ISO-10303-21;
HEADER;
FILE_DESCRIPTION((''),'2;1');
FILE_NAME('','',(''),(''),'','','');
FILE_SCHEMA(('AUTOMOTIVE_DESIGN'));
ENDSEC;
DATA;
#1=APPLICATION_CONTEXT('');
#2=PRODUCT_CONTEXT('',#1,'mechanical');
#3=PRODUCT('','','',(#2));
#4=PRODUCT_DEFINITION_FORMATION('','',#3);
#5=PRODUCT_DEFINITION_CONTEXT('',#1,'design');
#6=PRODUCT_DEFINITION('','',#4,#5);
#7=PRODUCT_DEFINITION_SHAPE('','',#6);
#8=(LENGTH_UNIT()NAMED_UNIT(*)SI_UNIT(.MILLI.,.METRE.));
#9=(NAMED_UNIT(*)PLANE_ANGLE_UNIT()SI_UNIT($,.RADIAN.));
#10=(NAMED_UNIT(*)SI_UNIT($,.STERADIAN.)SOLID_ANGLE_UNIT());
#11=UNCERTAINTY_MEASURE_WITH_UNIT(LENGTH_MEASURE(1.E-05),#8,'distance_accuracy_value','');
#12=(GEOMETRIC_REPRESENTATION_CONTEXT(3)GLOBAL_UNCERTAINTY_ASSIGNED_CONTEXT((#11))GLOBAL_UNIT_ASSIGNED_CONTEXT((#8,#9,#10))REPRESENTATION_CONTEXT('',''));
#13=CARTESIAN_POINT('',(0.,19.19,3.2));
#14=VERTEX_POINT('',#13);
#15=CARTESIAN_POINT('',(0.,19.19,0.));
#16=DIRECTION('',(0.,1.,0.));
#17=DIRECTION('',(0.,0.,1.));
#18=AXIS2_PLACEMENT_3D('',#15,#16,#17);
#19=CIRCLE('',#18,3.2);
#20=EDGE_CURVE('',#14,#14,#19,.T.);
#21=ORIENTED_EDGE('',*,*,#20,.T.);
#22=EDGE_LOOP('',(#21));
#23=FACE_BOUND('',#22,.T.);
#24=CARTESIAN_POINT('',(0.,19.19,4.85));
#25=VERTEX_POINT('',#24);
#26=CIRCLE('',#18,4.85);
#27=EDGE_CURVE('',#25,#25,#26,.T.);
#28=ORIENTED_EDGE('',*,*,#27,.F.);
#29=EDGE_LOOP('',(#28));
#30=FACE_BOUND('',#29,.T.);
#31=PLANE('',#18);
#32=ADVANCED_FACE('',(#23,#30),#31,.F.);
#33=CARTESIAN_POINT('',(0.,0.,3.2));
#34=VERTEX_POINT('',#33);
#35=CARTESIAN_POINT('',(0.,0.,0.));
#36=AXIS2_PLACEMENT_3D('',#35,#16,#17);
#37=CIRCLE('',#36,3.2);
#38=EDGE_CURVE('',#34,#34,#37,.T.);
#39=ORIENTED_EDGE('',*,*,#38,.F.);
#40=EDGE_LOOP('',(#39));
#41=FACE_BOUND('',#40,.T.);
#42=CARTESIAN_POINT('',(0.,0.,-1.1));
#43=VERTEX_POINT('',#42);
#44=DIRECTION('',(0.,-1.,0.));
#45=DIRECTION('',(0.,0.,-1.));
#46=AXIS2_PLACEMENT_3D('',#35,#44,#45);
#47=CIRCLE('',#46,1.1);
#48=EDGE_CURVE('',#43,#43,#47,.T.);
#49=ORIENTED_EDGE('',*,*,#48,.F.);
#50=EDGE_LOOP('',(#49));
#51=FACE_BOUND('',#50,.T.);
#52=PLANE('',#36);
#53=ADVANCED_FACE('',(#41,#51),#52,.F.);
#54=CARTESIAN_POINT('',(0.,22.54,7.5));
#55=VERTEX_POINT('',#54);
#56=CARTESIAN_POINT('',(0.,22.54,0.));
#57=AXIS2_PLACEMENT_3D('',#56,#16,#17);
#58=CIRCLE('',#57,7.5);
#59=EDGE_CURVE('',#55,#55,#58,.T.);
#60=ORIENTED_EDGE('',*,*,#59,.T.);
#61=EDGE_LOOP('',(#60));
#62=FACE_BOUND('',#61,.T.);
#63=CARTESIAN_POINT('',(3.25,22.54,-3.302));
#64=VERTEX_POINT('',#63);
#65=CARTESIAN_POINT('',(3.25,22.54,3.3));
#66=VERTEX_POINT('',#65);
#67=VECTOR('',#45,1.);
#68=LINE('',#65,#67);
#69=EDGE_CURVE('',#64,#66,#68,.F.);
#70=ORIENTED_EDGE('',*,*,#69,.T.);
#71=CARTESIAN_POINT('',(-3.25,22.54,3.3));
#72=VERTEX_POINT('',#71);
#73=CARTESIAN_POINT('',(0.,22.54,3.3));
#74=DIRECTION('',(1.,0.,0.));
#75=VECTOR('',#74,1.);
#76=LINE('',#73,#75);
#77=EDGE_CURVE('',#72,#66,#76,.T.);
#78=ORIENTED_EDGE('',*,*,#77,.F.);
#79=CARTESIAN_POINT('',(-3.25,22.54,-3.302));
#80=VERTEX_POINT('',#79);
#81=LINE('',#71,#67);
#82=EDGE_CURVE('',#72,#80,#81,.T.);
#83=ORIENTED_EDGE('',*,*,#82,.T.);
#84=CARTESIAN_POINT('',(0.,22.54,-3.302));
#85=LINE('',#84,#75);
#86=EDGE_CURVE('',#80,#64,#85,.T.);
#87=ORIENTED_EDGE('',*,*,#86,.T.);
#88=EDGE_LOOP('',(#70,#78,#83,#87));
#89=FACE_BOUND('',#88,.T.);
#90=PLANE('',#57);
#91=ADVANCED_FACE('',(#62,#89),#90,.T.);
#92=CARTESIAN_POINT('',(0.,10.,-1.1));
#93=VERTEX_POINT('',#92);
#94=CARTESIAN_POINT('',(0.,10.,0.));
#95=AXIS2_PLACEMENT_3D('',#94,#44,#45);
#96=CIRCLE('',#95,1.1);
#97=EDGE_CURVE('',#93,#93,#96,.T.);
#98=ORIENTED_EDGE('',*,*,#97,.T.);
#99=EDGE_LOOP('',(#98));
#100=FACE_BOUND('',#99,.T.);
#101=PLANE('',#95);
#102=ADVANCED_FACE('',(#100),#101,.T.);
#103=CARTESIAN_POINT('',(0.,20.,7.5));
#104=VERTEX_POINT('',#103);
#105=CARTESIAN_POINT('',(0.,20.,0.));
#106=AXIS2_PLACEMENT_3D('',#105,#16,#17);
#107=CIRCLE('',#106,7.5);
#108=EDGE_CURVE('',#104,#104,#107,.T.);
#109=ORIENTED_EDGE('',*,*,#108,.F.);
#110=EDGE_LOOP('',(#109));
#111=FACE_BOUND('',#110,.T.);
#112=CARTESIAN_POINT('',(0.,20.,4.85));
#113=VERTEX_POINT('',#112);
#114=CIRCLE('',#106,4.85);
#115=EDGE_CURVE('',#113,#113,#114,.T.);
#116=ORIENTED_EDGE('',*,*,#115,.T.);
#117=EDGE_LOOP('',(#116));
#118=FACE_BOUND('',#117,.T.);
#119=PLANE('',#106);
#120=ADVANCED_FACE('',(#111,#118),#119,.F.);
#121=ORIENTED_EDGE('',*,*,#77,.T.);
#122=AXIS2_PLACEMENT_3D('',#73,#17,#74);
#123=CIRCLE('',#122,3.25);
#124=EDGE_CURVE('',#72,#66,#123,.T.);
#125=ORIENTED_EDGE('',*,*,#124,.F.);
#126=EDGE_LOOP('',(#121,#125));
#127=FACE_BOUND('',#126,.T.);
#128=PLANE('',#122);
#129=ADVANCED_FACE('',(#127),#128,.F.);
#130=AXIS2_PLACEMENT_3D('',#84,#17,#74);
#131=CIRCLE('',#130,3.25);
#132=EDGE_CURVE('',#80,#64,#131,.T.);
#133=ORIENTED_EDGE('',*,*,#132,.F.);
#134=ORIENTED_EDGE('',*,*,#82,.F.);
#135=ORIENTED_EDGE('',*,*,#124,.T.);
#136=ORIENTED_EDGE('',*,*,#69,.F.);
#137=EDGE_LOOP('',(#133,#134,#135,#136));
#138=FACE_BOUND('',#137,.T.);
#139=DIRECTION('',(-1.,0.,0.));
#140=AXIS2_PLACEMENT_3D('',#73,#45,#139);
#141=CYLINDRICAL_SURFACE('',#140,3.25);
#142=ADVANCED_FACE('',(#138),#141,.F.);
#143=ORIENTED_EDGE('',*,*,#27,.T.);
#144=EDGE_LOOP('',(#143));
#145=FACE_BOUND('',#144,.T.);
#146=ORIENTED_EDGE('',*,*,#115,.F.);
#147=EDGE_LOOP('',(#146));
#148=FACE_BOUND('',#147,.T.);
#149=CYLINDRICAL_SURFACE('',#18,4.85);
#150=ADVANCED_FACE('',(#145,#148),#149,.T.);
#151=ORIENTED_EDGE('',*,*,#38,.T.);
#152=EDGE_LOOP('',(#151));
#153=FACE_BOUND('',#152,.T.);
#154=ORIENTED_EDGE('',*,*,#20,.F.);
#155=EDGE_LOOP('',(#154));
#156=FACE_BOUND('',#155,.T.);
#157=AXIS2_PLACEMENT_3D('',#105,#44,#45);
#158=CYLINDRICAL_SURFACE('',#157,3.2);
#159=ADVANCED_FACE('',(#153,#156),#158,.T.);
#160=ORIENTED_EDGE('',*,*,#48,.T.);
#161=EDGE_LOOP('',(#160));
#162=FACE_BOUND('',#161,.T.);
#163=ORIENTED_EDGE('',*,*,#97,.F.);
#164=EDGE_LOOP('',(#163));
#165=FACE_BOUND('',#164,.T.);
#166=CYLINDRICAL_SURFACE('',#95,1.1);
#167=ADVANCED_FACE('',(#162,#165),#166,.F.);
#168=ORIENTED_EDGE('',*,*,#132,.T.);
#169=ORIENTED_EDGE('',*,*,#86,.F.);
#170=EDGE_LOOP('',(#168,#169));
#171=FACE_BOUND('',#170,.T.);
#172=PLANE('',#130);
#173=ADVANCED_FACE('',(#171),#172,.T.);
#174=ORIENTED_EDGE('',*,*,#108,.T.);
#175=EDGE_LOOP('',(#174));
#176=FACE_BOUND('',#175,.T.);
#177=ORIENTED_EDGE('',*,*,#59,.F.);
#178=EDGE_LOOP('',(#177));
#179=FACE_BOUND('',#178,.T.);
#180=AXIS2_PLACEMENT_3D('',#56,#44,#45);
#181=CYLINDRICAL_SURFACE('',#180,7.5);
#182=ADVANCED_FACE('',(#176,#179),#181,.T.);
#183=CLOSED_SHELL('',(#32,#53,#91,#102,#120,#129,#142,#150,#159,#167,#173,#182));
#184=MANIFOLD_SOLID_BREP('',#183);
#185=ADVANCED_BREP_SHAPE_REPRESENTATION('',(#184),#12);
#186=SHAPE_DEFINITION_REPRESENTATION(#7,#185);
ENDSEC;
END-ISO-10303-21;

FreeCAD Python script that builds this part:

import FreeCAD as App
import Part
import Sketcher

V = App.Vector
Q = App.Units.Quantity

doc = App.newDocument("Part")
params = doc.addObject("Spreadsheet::Sheet", "Params")
for row, (alias, value) in enumerate([
    ("sketch1_diameter", "6.4 mm"),
    ("pad1_length", "20 mm"),
    ("sketch2_diameter", "2.2 mm"),
    ("pocket1_length", "10 mm"),
    ("sketch3_diameter", "15 mm"),
    ("pad2_length", "2.54 mm"),
    ("sketch4_diameter", "9.7 mm"),
    ("pad3_length", "3.35 mm"),
    ("sketch5_diameter", "6.5 mm"),
    ("pocket2_length", "3.3 mm"),
    ("pocket2_length2", "3.302 mm"),
], start=1):
    params.set(f"A{row}", alias)
    params.set(f"B{row}", "=" + value)
    params.setAlias(f"B{row}", alias)

body = doc.addObject("PartDesign::Body", "Body")

sketch1 = body.newObject("Sketcher::SketchObject", "Sketch")
sketch1.AttachmentSupport = (doc.getObject("XZ_Plane"), [""])
sketch1.MapMode = "FlatFace"
sketch1.addGeometry(Part.Circle(V(0, 0, 0), V(0, 0, 1), 3.2), False)
sketch1.addConstraint(Sketcher.Constraint("Coincident", 0, 3, -1, 1))
sketch1.addConstraint(Sketcher.Constraint("Diameter", 0, Q("6.4 mm")))
sketch1.setExpression("Constraints[1]", "Params.sketch1_diameter")
pad1 = body.newObject("PartDesign::Pad", "Pad")
pad1.Profile = sketch1
pad1.setExpression("Length", "Params.pad1_length")
pad1.Reversed = True

sketch2 = body.newObject("Sketcher::SketchObject", "Sketch001")
sketch2.AttachmentSupport = (doc.getObject("XZ_Plane"), [""])
sketch2.MapMode = "FlatFace"
sketch2.addGeometry(Part.Circle(V(0, 0, 0), V(0, 0, 1), 1.1), False)
sketch2.addConstraint(Sketcher.Constraint("Coincident", 0, 3, -1, 1))
sketch2.addConstraint(Sketcher.Constraint("Diameter", 0, Q("2.2 mm")))
sketch2.setExpression("Constraints[1]", "Params.sketch2_diameter")
pocket1 = body.newObject("PartDesign::Pocket", "Pocket")
pocket1.Profile = sketch2
pocket1.setExpression("Length", "Params.pocket1_length")

sketch3 = body.newObject("Sketcher::SketchObject", "Sketch002")
sketch3.AttachmentSupport = (doc.getObject("XZ_Plane"), [""])
sketch3.MapMode = "FlatFace"
sketch3.AttachmentOffset = App.Placement(V(0, 0, -20), App.Rotation())
sketch3.addGeometry(Part.Circle(V(0, 0, 0), V(0, 0, 1), 7.5), False)
sketch3.addConstraint(Sketcher.Constraint("Coincident", 0, 3, -1, 1))
sketch3.addConstraint(Sketcher.Constraint("Diameter", 0, Q("15 mm")))
sketch3.setExpression("Constraints[1]", "Params.sketch3_diameter")
pad2 = body.newObject("PartDesign::Pad", "Pad001")
pad2.Profile = sketch3
pad2.setExpression("Length", "Params.pad2_length")
pad2.Reversed = True

sketch4 = body.newObject("Sketcher::SketchObject", "Sketch003")
sketch4.AttachmentSupport = (doc.getObject("XZ_Plane"), [""])
sketch4.MapMode = "FlatFace"
sketch4.AttachmentOffset = App.Placement(V(0, 0, -22.54), App.Rotation())
sketch4.addGeometry(Part.Circle(V(0, 0, 0), V(0, 0, 1), 4.85), False)
sketch4.addConstraint(Sketcher.Constraint("Coincident", 0, 3, -1, 1))
sketch4.addConstraint(Sketcher.Constraint("Diameter", 0, Q("9.7 mm")))
sketch4.setExpression("Constraints[1]", "Params.sketch4_diameter")
pad3 = body.newObject("PartDesign::Pad", "Pad002")
pad3.Profile = sketch4
pad3.setExpression("Length", "Params.pad3_length")

sketch5 = body.newObject("Sketcher::SketchObject", "Sketch004")
sketch5.AttachmentSupport = (doc.getObject("XY_Plane"), [""])
sketch5.MapMode = "FlatFace"
sketch5.addGeometry(Part.Circle(V(0, 22.54, 0), V(0, 0, 1), 3.25), False)
sketch5.addConstraint(Sketcher.Constraint("PointOnObject", 0, 3, -2))
sketch5.addConstraint(Sketcher.Constraint("Diameter", 0, Q("6.5 mm")))
sketch5.addConstraint(Sketcher.Constraint("DistanceY", -1, 1, 0, 3, Q("22.54 mm")))
sketch5.setExpression("Constraints[1]", "Params.sketch5_diameter")
pocket2 = body.newObject("PartDesign::Pocket", "Pocket001")
pocket2.Profile = sketch5
pocket2.Type = "TwoLengths"
pocket2.setExpression("Length", "Params.pocket2_length")
pocket2.setExpression("Length2", "Params.pocket2_length2")
pocket2.Reversed = True

doc.recompute()
